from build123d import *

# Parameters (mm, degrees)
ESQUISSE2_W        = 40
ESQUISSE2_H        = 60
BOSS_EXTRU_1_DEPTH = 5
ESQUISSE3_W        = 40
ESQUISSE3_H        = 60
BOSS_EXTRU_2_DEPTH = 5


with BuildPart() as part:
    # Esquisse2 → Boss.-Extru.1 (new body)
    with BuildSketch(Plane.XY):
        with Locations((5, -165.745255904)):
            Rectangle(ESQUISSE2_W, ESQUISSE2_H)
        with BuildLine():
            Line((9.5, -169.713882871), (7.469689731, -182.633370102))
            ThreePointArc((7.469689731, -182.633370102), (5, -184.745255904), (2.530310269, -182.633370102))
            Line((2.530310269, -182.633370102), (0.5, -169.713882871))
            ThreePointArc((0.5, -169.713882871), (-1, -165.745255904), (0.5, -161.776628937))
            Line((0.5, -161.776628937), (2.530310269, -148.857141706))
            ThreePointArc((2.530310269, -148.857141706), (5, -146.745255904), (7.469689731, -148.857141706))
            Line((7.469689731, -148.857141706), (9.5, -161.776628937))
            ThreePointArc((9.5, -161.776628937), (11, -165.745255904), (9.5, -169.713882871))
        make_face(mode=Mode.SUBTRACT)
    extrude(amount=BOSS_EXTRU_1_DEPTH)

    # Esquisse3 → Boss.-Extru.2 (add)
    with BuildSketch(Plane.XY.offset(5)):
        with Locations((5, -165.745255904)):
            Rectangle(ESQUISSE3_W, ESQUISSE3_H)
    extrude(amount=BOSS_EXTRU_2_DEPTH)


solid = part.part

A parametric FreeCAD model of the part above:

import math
import FreeCAD as App
import Part
import Sketcher
Q = App.Units.Quantity

doc = App.newDocument("Part")
body = doc.addObject("PartDesign::Body", "Body")

# Sketch on XY plane
sketch1 = body.newObject("Sketcher::SketchObject", "Sketch")
sketch1.AttachmentSupport = (doc.getObject("XY_Plane"), [""])
sketch1.MapMode = "FlatFace"
sketch1.addGeometry([
    Part.LineSegment(App.Vector(-15, -135.745256, 0), App.Vector(-15, -195.745256, 0)),  # 0
    Part.LineSegment(App.Vector(-15, -195.745256, 0), App.Vector(25, -195.745256, 0)),  # 1
    Part.LineSegment(App.Vector(25, -195.745256, 0), App.Vector(25, -135.745256, 0)),  # 2
    Part.LineSegment(App.Vector(25, -135.745256, 0), App.Vector(-15, -135.745256, 0)),  # 3
    Part.ArcOfCircle(Part.Circle(App.Vector(5, -165.745256, 0), App.Vector(0, 0, 1), 6), math.radians(-41.409622), math.radians(41.409622)),  # 4
    Part.LineSegment(App.Vector(9.5, -169.713883, 0), App.Vector(7.46969, -182.63337, 0)),  # 5
    Part.ArcOfCircle(Part.Circle(App.Vector(5, -182.245256, 0), App.Vector(0, 0, 1), 2.5), math.radians(-171.068955), math.radians(-8.931045)),  # 6
    Part.LineSegment(App.Vector(2.53031, -182.63337, 0), App.Vector(0.5, -169.713883, 0)),  # 7
    Part.ArcOfCircle(Part.Circle(App.Vector(5, -165.745256, 0), App.Vector(0, 0, 1), 6), math.radians(138.590378), math.radians(221.409622)),  # 8
    Part.LineSegment(App.Vector(0.5, -161.776629, 0), App.Vector(2.53031, -148.857142, 0)),  # 9
    Part.ArcOfCircle(Part.Circle(App.Vector(5, -149.245256, 0), App.Vector(0, 0, 1), 2.5), math.radians(8.931045), math.radians(171.068955)),  # 10
    Part.LineSegment(App.Vector(7.46969, -148.857142, 0), App.Vector(9.5, -161.776629, 0)),  # 11
], False)
sketch1.addConstraint([
    Sketcher.Constraint("Coincident", 0, 2, 1, 1),
    Sketcher.Constraint("Coincident", 1, 2, 2, 1),
    Sketcher.Constraint("Coincident", 2, 2, 3, 1),
    Sketcher.Constraint("Coincident", 3, 2, 0, 1),
    Sketcher.Constraint("Coincident", 4, 1, 5, 1),
    Sketcher.Constraint("Tangent", 5, 2, 6, 2),
    Sketcher.Constraint("Tangent", 6, 1, 7, 1),
    Sketcher.Constraint("Coincident", 7, 2, 8, 2),
    Sketcher.Constraint("Coincident", 8, 1, 9, 1),
    Sketcher.Constraint("Tangent", 9, 2, 10, 2),
    Sketcher.Constraint("Tangent", 10, 1, 11, 1),
    Sketcher.Constraint("Coincident", 11, 2, 4, 2),
    Sketcher.Constraint("Vertical", 0),
    Sketcher.Constraint("Horizontal", 1),
    Sketcher.Constraint("Vertical", 2),
    Sketcher.Constraint("Horizontal", 3),
    Sketcher.Constraint("Coincident", 8, 3, 4, 3),
    Sketcher.Constraint("Equal", 4, 8),
    Sketcher.Constraint("Equal", 6, 10),
    Sketcher.Constraint("Parallel", 5, 9),
    Sketcher.Constraint("Parallel", 7, 11),
    Sketcher.Constraint("Horizontal", 5, 2, 6, 1),
    Sketcher.Constraint("Horizontal", 4, 1, 7, 2),
    Sketcher.Constraint("Horizontal", 8, 1, 11, 2),
    Sketcher.Constraint("Vertical", 7, 2, 8, 1),
    Sketcher.Constraint("Radius", 4, Q("6 mm")),
    Sketcher.Constraint("Radius", 6, Q("2.5 mm")),
    Sketcher.Constraint("DistanceX", 1, 1, 1, 2, Q("40 mm")),
    Sketcher.Constraint("DistanceY", 0, 2, 0, 1, Q("60 mm")),
    Sketcher.Constraint("DistanceX", -1, 1, 4, 3, Q("5 mm")),
    Sketcher.Constraint("DistanceX", 0, 2, -1, 1, Q("15 mm")),
    Sketcher.Constraint("DistanceY", 6, 3, 10, 3, Q("33 mm")),
    Sketcher.Constraint("DistanceY", 0, 2, 4, 3, Q("30 mm")),
    Sketcher.Constraint("DistanceX", 7, 2, 4, 1, Q("9 mm")),
    Sketcher.Constraint("DistanceY", 5, 2, -1, 1, Q("182.63337 mm")),
])
pad1 = body.newObject("PartDesign::Pad", "Pad")
pad1.Profile = sketch1
pad1.Length = 5

# Sketch on XY plane
sketch2 = body.newObject("Sketcher::SketchObject", "Sketch001")
sketch2.AttachmentSupport = (doc.getObject("XY_Plane"), [""])
sketch2.MapMode = "FlatFace"
sketch2.AttachmentOffset = App.Placement(App.Vector(0, 0, 5), App.Rotation())
sketch2.addGeometry([
    Part.LineSegment(App.Vector(-15, -135.745256, 0), App.Vector(-15, -195.745256, 0)),
    Part.LineSegment(App.Vector(-15, -195.745256, 0), App.Vector(25, -195.745256, 0)),
    Part.LineSegment(App.Vector(25, -195.745256, 0), App.Vector(25, -135.745256, 0)),
    Part.LineSegment(App.Vector(25, -135.745256, 0), App.Vector(-15, -135.745256, 0)),
], False)
sketch2.addConstraint([
    Sketcher.Constraint("Coincident", 0, 2, 1, 1),
    Sketcher.Constraint("Coincident", 1, 2, 2, 1),
    Sketcher.Constraint("Coincident", 2, 2, 3, 1),
    Sketcher.Constraint("Coincident", 3, 2, 0, 1),
    Sketcher.Constraint("Vertical", 0),
    Sketcher.Constraint("Horizontal", 1),
    Sketcher.Constraint("Vertical", 2),
    Sketcher.Constraint("Horizontal", 3),
    Sketcher.Constraint("DistanceX", 1, 1, 1, 2, Q("40 mm")),
    Sketcher.Constraint("DistanceY", 0, 2, 0, 1, Q("60 mm")),
    Sketcher.Constraint("DistanceX", 0, 2, -1, 1, Q("15 mm")),
    Sketcher.Constraint("DistanceY", 0, 2, -1, 1, Q("195.745256 mm")),
])
pad2 = body.newObject("PartDesign::Pad", "Pad001")
pad2.Profile = sketch2
pad2.Length = 5

doc.recompute()
